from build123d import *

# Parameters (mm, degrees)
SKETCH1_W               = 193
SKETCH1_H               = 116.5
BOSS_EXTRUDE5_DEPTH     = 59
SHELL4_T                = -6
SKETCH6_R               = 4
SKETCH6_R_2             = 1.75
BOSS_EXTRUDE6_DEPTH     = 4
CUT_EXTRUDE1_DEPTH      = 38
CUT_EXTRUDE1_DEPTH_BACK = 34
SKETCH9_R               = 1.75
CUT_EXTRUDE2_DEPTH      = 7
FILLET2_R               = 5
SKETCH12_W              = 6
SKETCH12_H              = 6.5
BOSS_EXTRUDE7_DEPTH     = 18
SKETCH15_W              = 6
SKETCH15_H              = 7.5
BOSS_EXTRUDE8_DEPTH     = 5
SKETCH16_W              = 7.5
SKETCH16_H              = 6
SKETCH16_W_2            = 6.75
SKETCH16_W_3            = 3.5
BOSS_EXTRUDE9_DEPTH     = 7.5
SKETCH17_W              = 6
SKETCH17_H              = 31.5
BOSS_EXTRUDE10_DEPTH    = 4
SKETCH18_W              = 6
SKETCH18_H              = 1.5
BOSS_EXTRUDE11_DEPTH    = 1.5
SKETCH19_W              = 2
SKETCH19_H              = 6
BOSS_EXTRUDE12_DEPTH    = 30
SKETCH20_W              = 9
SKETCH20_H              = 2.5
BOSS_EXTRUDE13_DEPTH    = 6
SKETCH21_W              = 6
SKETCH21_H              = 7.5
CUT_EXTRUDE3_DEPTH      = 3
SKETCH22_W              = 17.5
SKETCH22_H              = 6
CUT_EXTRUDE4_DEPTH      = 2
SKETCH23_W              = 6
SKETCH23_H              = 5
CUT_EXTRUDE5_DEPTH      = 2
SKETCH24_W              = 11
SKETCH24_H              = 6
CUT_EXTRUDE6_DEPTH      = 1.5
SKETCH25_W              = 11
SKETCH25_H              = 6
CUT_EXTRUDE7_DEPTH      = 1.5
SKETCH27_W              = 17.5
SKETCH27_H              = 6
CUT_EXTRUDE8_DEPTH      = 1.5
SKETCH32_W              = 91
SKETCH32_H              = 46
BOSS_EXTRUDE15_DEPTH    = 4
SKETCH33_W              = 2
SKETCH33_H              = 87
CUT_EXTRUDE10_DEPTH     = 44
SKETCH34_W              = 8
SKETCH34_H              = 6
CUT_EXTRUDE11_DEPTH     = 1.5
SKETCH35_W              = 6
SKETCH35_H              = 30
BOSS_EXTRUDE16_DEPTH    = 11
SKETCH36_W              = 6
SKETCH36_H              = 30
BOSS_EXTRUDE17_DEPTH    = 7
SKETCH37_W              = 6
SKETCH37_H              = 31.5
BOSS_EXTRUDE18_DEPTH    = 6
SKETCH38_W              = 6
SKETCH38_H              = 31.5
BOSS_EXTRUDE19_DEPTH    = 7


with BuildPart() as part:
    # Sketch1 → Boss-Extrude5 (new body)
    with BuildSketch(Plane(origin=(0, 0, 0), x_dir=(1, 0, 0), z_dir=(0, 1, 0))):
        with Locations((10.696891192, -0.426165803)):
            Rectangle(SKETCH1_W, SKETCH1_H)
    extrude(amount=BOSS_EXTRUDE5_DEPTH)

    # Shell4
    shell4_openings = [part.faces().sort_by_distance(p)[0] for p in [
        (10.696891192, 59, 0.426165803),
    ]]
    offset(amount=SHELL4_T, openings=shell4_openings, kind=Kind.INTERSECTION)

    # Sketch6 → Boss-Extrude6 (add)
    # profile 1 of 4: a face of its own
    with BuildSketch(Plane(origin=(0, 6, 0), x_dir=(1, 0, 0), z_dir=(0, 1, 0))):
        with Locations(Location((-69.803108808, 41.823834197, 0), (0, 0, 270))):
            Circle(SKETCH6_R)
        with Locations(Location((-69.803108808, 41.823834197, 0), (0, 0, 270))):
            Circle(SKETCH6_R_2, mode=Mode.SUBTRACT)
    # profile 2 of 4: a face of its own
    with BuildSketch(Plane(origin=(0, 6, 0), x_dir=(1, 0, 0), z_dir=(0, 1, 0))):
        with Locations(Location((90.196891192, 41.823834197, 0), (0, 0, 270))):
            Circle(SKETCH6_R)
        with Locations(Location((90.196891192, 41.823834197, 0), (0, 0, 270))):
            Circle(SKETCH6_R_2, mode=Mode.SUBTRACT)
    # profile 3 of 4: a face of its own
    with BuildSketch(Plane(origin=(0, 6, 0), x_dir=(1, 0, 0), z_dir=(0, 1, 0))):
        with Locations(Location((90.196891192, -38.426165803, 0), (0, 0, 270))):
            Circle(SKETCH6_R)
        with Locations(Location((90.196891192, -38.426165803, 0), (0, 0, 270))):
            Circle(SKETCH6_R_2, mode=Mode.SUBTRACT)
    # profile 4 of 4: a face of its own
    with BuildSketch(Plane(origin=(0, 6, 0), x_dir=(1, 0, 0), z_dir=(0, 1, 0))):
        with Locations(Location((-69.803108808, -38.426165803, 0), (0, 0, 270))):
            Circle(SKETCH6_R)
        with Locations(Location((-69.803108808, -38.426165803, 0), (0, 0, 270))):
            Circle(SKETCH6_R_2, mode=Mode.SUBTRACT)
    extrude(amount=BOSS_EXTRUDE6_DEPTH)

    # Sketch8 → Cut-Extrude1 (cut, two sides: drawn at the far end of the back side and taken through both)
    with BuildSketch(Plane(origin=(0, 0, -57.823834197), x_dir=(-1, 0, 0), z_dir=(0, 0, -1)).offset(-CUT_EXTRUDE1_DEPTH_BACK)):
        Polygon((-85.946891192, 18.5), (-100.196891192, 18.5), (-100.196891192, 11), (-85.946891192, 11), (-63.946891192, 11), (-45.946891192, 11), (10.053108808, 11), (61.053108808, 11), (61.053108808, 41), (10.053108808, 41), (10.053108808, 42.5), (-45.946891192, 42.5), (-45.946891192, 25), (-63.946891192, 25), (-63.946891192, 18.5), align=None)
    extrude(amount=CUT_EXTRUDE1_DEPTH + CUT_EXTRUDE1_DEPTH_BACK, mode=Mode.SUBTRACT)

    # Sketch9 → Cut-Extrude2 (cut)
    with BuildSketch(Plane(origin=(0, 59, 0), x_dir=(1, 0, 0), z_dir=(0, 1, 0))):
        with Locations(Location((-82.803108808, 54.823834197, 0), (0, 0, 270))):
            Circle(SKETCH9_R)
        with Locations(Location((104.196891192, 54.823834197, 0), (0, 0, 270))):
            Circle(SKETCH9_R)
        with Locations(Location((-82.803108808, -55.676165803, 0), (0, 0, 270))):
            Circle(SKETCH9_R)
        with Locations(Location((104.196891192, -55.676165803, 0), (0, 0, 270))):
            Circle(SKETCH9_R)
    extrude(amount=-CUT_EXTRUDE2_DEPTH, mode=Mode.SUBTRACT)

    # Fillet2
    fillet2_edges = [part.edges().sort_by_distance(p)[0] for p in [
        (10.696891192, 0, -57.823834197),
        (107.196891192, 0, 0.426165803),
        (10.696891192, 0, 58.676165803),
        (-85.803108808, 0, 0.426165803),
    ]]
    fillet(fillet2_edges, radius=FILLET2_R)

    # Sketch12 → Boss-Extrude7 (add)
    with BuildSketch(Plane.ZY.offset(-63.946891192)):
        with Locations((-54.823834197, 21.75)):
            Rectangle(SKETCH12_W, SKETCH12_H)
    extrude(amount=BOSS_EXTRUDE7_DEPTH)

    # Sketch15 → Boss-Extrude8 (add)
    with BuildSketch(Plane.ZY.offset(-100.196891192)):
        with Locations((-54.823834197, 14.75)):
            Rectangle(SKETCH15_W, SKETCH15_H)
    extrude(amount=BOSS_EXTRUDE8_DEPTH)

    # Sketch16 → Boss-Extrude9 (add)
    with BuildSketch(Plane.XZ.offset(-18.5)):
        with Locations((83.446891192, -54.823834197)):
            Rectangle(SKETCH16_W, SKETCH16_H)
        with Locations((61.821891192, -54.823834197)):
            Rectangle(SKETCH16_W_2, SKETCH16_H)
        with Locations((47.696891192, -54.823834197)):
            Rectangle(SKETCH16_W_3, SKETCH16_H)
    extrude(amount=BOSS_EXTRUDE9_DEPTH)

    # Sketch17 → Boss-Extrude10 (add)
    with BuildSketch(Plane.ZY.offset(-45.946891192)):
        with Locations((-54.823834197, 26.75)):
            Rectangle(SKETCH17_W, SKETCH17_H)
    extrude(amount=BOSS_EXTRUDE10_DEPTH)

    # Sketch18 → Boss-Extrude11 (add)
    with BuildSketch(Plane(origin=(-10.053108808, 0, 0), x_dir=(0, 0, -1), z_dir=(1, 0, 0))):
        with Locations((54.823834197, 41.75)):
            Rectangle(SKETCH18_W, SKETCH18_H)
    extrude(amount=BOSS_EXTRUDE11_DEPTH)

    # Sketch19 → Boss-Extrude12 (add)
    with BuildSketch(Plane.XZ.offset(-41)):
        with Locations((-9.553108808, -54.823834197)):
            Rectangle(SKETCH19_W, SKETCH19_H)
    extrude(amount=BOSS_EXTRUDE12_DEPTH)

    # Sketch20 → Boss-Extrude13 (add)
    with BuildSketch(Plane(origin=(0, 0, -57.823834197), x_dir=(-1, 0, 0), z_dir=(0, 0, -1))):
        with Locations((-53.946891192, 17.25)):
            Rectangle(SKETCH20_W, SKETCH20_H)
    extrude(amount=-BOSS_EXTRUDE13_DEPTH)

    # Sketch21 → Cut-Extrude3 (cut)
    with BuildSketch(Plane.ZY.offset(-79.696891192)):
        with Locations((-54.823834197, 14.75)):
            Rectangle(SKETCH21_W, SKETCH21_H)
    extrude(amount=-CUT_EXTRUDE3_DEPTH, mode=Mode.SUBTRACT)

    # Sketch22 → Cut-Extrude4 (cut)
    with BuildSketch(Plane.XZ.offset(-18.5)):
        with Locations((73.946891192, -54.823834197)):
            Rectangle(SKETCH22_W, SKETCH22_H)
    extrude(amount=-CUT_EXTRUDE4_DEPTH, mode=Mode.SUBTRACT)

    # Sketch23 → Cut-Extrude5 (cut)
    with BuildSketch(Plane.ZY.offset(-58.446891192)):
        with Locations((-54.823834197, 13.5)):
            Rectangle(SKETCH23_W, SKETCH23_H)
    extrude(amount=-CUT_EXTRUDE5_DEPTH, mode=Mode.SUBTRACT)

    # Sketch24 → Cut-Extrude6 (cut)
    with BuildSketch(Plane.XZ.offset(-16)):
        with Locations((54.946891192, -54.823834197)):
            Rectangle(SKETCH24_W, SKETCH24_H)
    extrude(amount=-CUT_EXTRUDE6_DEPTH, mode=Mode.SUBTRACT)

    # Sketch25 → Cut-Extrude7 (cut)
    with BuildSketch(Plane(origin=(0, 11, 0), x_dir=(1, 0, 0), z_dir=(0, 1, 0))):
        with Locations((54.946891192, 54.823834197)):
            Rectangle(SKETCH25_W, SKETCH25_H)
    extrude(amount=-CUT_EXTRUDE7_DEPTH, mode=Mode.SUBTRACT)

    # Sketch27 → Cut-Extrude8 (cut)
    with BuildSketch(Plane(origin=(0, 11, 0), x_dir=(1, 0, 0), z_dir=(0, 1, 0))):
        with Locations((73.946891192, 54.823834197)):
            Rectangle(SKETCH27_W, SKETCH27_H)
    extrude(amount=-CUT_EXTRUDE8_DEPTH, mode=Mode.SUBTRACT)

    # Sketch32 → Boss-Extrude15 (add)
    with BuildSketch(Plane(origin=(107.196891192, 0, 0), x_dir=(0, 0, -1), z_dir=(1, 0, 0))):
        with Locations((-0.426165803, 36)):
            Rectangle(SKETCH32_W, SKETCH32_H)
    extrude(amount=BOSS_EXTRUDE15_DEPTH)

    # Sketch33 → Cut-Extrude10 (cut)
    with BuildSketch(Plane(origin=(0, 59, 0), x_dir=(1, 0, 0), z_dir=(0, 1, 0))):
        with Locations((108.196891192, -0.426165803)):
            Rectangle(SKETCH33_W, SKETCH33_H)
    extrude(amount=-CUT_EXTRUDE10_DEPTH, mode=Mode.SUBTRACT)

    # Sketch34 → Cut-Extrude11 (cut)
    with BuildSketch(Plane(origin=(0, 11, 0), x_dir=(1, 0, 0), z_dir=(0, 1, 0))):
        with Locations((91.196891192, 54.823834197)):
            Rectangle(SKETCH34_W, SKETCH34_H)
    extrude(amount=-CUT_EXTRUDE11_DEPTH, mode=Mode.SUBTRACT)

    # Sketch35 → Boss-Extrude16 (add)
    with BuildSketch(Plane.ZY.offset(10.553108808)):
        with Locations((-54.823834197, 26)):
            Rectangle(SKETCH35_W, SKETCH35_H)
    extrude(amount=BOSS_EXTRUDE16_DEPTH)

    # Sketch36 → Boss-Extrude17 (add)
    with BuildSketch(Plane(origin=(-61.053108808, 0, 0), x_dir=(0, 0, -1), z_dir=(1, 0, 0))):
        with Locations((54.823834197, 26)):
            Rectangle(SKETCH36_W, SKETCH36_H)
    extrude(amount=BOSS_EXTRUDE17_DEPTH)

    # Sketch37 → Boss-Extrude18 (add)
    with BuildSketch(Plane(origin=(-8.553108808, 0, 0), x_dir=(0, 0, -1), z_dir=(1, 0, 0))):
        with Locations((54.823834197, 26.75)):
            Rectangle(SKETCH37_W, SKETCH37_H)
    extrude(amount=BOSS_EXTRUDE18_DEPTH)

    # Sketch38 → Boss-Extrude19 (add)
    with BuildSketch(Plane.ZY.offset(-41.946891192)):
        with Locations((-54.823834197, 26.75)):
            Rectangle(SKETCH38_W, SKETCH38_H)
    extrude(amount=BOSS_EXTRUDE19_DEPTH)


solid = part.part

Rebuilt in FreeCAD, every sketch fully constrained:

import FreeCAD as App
import Part
import Sketcher
Q = App.Units.Quantity


def edges_at(feature, points):
    """Names of the edges that pass closest to the given points."""
    edges = feature.Shape.Edges
    near = lambda p: min(range(len(edges)), key=lambda i: edges[i].distToShape(Part.Vertex(*p))[0])
    return sorted({f"Edge{near(p) + 1}" for p in points})


def faces_at(feature, points):
    """Names of the faces that lie closest to the given points."""
    faces = feature.Shape.Faces
    near = lambda p: min(range(len(faces)), key=lambda i: faces[i].distToShape(Part.Vertex(*p))[0])
    return sorted({f"Face{near(p) + 1}" for p in points})


def add_polygon(sketch, points):
    """Adds a closed chain of lines whose ends are joined by coincident constraints."""
    first, n = sketch.GeometryCount, len(points)
    for a, b in zip(points, points[1:] + points[:1]):
        sketch.addGeometry(Part.LineSegment(App.Vector(*a, 0), App.Vector(*b, 0)), False)
    for i in range(n):
        sketch.addConstraint(Sketcher.Constraint("Coincident", first + i, 2, first + (i + 1) % n, 1))

doc = App.newDocument("Part")
body = doc.addObject("PartDesign::Body", "Body")

# Sketch on XZ plane
sketch1 = doc.addObject("Sketcher::SketchObject", "Sketch")
body.addObject(sketch1)
sketch1.AttachmentSupport = (doc.XZ_Plane, [""])
sketch1.MapMode = "FlatFace"
add_polygon(sketch1, [(-85.803109, -57.823834), (-85.803109, 58.676166), (107.196891, 58.676166), (107.196891, -57.823834)])  # lines 0-3
sketch1.addConstraint([
    Sketcher.Constraint("Vertical", 0),
    Sketcher.Constraint("Horizontal", 1),
    Sketcher.Constraint("Vertical", 2),
    Sketcher.Constraint("Horizontal", 3),
    Sketcher.Constraint("DistanceX", 1, 1, 1, 2, Q("193 mm")),
    Sketcher.Constraint("DistanceY", 0, 1, 0, 2, Q("116.5 mm")),
    Sketcher.Constraint("DistanceX", 0, 2, -1, 1, Q("85.803109 mm")),
    Sketcher.Constraint("DistanceY", -1, 1, 0, 2, Q("58.676166 mm")),
])
pad1 = doc.addObject("PartDesign::Pad", "Pad")
body.addObject(pad1)
pad1.Profile = sketch1
pad1.Length = 59
pad1.Reversed = True
doc.recompute()

thickness = doc.addObject("PartDesign::Thickness", "Thickness")
body.addObject(thickness)
thickness.Base = (pad1, faces_at(pad1, [(10.697, 59, 0.426)]))
thickness.Value = 6
thickness.Reversed = True
thickness.Join = "Intersection"

# Sketch on XZ plane
sketch2 = doc.addObject("Sketcher::SketchObject", "Sketch001")
body.addObject(sketch2)
sketch2.AttachmentSupport = (doc.XZ_Plane, [""])
sketch2.MapMode = "FlatFace"
sketch2.AttachmentOffset = App.Placement(App.Vector(0, 0, -6), App.Rotation())
sketch2.addGeometry([
    Part.Circle(App.Vector(-69.803109, -41.823834, 0), App.Vector(0, 0, 1), 4),  # 0
    Part.Circle(App.Vector(-69.803109, -41.823834, 0), App.Vector(0, 0, 1), 1.75),  # 1
    Part.Circle(App.Vector(90.196891, -41.823834, 0), App.Vector(0, 0, 1), 4),  # 2
    Part.Circle(App.Vector(90.196891, -41.823834, 0), App.Vector(0, 0, 1), 1.75),  # 3
    Part.Circle(App.Vector(90.196891, 38.426166, 0), App.Vector(0, 0, 1), 4),  # 4
    Part.Circle(App.Vector(90.196891, 38.426166, 0), App.Vector(0, 0, 1), 1.75),  # 5
    Part.Circle(App.Vector(-69.803109, 38.426166, 0), App.Vector(0, 0, 1), 4),  # 6
    Part.Circle(App.Vector(-69.803109, 38.426166, 0), App.Vector(0, 0, 1), 1.75),  # 7
], False)
sketch2.addConstraint([
    Sketcher.Constraint("Coincident", 1, 3, 0, 3),
    Sketcher.Constraint("Coincident", 3, 3, 2, 3),
    Sketcher.Constraint("Coincident", 5, 3, 4, 3),
    Sketcher.Constraint("Coincident", 7, 3, 6, 3),
    Sketcher.Constraint("Equal", 0, 2),
    Sketcher.Constraint("Equal", 1, 3),
    Sketcher.Constraint("Equal", 2, 4),
    Sketcher.Constraint("Equal", 3, 5),
    Sketcher.Constraint("Equal", 4, 6),
    Sketcher.Constraint("Equal", 5, 7),
    Sketcher.Constraint("Horizontal", 1, 3, 2, 3),
    Sketcher.Constraint("Horizontal", 5, 3, 6, 3),
    Sketcher.Constraint("Vertical", 3, 3, 4, 3),
    Sketcher.Constraint("Vertical", 1, 3, 6, 3),
    Sketcher.Constraint("Diameter", 0, Q("8 mm")),
    Sketcher.Constraint("Diameter", 1, Q("3.5 mm")),
    Sketcher.Constraint("DistanceX", 0, 3, 2, 3, Q("160 mm")),
    Sketcher.Constraint("DistanceY", 2, 3, 4, 3, Q("80.25 mm")),
    Sketcher.Constraint("DistanceX", 0, 3, -1, 1, Q("69.803109 mm")),
    Sketcher.Constraint("DistanceY", 0, 3, -1, 1, Q("41.823834 mm")),
])
pad2 = doc.addObject("PartDesign::Pad", "Pad001")
body.addObject(pad2)
pad2.Profile = sketch2
pad2.Length = 4
pad2.Reversed = True

# Sketch on XY plane
sketch3 = doc.addObject("Sketcher::SketchObject", "Sketch002")
body.addObject(sketch3)
sketch3.AttachmentSupport = (doc.XY_Plane, [""])
sketch3.MapMode = "FlatFace"
sketch3.AttachmentOffset = App.Placement(App.Vector(0, 0, -57.823834), App.Rotation())
add_polygon(sketch3, [(100.196891, 18.5), (100.196891, 11), (-61.053109, 11), (-61.053109, 41), (-10.053109, 41), (-10.053109, 42.5), (45.946891, 42.5), (45.946891, 25), (63.946891, 25), (63.946891, 18.5)])  # lines 0-9
sketch3.addConstraint([
    Sketcher.Constraint("Vertical", 0),
    Sketcher.Constraint("Horizontal", 1),
    Sketcher.Constraint("Vertical", 2),
    Sketcher.Constraint("Horizontal", 3),
    Sketcher.Constraint("Vertical", 4),
    Sketcher.Constraint("Horizontal", 5),
    Sketcher.Constraint("Vertical", 6),
    Sketcher.Constraint("Horizontal", 7),
    Sketcher.Constraint("Vertical", 8),
    Sketcher.Constraint("Horizontal", 9),
    Sketcher.Constraint("DistanceX", 3, 1, 3, 2, Q("51 mm")),
    Sketcher.Constraint("DistanceX", 5, 1, 5, 2, Q("56 mm")),
    Sketcher.Constraint("DistanceX", 7, 1, 7, 2, Q("18 mm")),
    Sketcher.Constraint("DistanceY", 2, 1, 2, 2, Q("30 mm")),
    Sketcher.Constraint("DistanceY", 0, 2, 0, 1, Q("7.5 mm")),
    Sketcher.Constraint("DistanceY", 4, 1, 4, 2, Q("1.5 mm")),
    Sketcher.Constraint("DistanceY", 6, 2, 6, 1, Q("17.5 mm")),
    Sketcher.Constraint("DistanceY", -1, 1, 0, 2, Q("11 mm")),
    Sketcher.Constraint("DistanceX", 1, 2, 1, 1, Q("161.25 mm")),
    Sketcher.Constraint("DistanceX", -1, 1, 0, 2, Q("100.196891 mm")),
])
pocket1 = doc.addObject("PartDesign::Pocket", "Pocket")
body.addObject(pocket1)
pocket1.Profile = sketch3
pocket1.Type = "TwoLengths"
pocket1.Length = 38
pocket1.Length2 = 34

# Sketch on XZ plane
sketch4 = doc.addObject("Sketcher::SketchObject", "Sketch003")
body.addObject(sketch4)
sketch4.AttachmentSupport = (doc.XZ_Plane, [""])
sketch4.MapMode = "FlatFace"
sketch4.AttachmentOffset = App.Placement(App.Vector(0, 0, -59), App.Rotation())
sketch4.addGeometry([
    Part.Circle(App.Vector(-82.803109, -54.823834, 0), App.Vector(0, 0, 1), 1.75),
    Part.Circle(App.Vector(104.196891, -54.823834, 0), App.Vector(0, 0, 1), 1.75),
    Part.Circle(App.Vector(-82.803109, 55.676166, 0), App.Vector(0, 0, 1), 1.75),
    Part.Circle(App.Vector(104.196891, 55.676166, 0), App.Vector(0, 0, 1), 1.75),
], False)
sketch4.addConstraint([
    Sketcher.Constraint("Equal", 0, 1),
    Sketcher.Constraint("Equal", 1, 2),
    Sketcher.Constraint("Equal", 2, 3),
    Sketcher.Constraint("Horizontal", 0, 3, 1, 3),
    Sketcher.Constraint("Horizontal", 2, 3, 3, 3),
    Sketcher.Constraint("Vertical", 0, 3, 2, 3),
    Sketcher.Constraint("Vertical", 1, 3, 3, 3),
    Sketcher.Constraint("Diameter", 0, Q("3.5 mm")),
    Sketcher.Constraint("DistanceX", 0, 3, 1, 3, Q("187 mm")),
    Sketcher.Constraint("DistanceY", 0, 3, 2, 3, Q("110.5 mm")),
    Sketcher.Constraint("DistanceX", 0, 3, -1, 1, Q("82.803109 mm")),
    Sketcher.Constraint("DistanceY", 0, 3, -1, 1, Q("54.823834 mm")),
])
pocket2 = doc.addObject("PartDesign::Pocket", "Pocket001")
body.addObject(pocket2)
pocket2.Profile = sketch4
pocket2.Length = 7
pocket2.Reversed = True
doc.recompute()

fillet = doc.addObject("PartDesign::Fillet", "Fillet")
body.addObject(fillet)
fillet.Base = (pocket2, edges_at(pocket2, [
    (10.697, 0, -57.824),
    (107.197, 0, 0.426),
    (10.697, 0, 58.676),
    (-85.803, 0, 0.426),
]))
fillet.Radius = 5

# Sketch on YZ plane
sketch5 = doc.addObject("Sketcher::SketchObject", "Sketch004")
body.addObject(sketch5)
sketch5.AttachmentSupport = (doc.YZ_Plane, [""])
sketch5.MapMode = "FlatFace"
sketch5.AttachmentOffset = App.Placement(App.Vector(0, 0, 63.946891), App.Rotation())
add_polygon(sketch5, [(25, -57.823834), (18.5, -57.823834), (18.5, -51.823834), (25, -51.823834)])  # lines 0-3
sketch5.addConstraint([
    Sketcher.Constraint("Horizontal", 0),
    Sketcher.Constraint("Vertical", 1),
    Sketcher.Constraint("Horizontal", 2),
    Sketcher.Constraint("Vertical", 3),
    Sketcher.Constraint("DistanceY", 1, 1, 1, 2, Q("6 mm")),
    Sketcher.Constraint("DistanceX", 0, 2, 0, 1, Q("6.5 mm")),
    Sketcher.Constraint("DistanceX", -1, 1, 2, 2, Q("25 mm")),
    Sketcher.Constraint("DistanceY", 0, 2, -1, 1, Q("57.823834 mm")),
])
pad3 = doc.addObject("PartDesign::Pad", "Pad002")
body.addObject(pad3)
pad3.Profile = sketch5
pad3.Length = 18
pad3.Reversed = True

# Sketch on YZ plane
sketch6 = doc.addObject("Sketcher::SketchObject", "Sketch005")
body.addObject(sketch6)
sketch6.AttachmentSupport = (doc.YZ_Plane, [""])
sketch6.MapMode = "FlatFace"
sketch6.AttachmentOffset = App.Placement(App.Vector(0, 0, 100.196891), App.Rotation())
add_polygon(sketch6, [(18.5, -57.823834), (11, -57.823834), (11, -51.823834), (18.5, -51.823834)])  # lines 0-3
sketch6.addConstraint([
    Sketcher.Constraint("Horizontal", 0),
    Sketcher.Constraint("Vertical", 1),
    Sketcher.Constraint("Horizontal", 2),
    Sketcher.Constraint("Vertical", 3),
    Sketcher.Constraint("DistanceY", 1, 1, 1, 2, Q("6 mm")),
    Sketcher.Constraint("DistanceX", 0, 2, 0, 1, Q("7.5 mm")),
    Sketcher.Constraint("DistanceX", -1, 1, 0, 2, Q("11 mm")),
    Sketcher.Constraint("DistanceY", 0, 2, -1, 1, Q("57.823834 mm")),
])
pad4 = doc.addObject("PartDesign::Pad", "Pad003")
body.addObject(pad4)
pad4.Profile = sketch6
pad4.Length = 5
pad4.Reversed = True

# Sketch on XZ plane
sketch7 = doc.addObject("Sketcher::SketchObject", "Sketch006")
body.addObject(sketch7)
sketch7.AttachmentSupport = (doc.XZ_Plane, [""])
sketch7.MapMode = "FlatFace"
sketch7.AttachmentOffset = App.Placement(App.Vector(0, 0, -18.5), App.Rotation())
add_polygon(sketch7, [(79.696891, -51.823834), (79.696891, -57.823834), (87.196891, -57.823834), (87.196891, -51.823834)])  # lines 0-3
add_polygon(sketch7, [(58.446891, -51.823834), (58.446891, -57.823834), (65.196891, -57.823834), (65.196891, -51.823834)])  # lines 4-7
add_polygon(sketch7, [(45.946891, -51.823834), (45.946891, -57.823834), (49.446891, -57.823834), (49.446891, -51.823834)])  # lines 8-11
sketch7.addConstraint([
    Sketcher.Constraint("Vertical", 0),
    Sketcher.Constraint("Horizontal", 1),
    Sketcher.Constraint("Vertical", 2),
    Sketcher.Constraint("Horizontal", 3),
    Sketcher.Constraint("Vertical", 4),
    Sketcher.Constraint("Horizontal", 5),
    Sketcher.Constraint("Vertical", 6),
    Sketcher.Constraint("Horizontal", 7),
    Sketcher.Constraint("Vertical", 8),
    Sketcher.Constraint("Horizontal", 9),
    Sketcher.Constraint("Vertical", 10),
    Sketcher.Constraint("Horizontal", 11),
    Sketcher.Constraint("Horizontal", 1, 2, 4, 2),
    Sketcher.Constraint("Horizontal", 3, 2, 6, 2),
    Sketcher.Constraint("Horizontal", 5, 2, 8, 2),
    Sketcher.Constraint("Horizontal", 7, 2, 10, 2),
    Sketcher.Constraint("DistanceY", 0, 2, 0, 1, Q("6 mm")),
    Sketcher.Constraint("DistanceX", 1, 1, 1, 2, Q("7.5 mm")),
    Sketcher.Constraint("DistanceX", 9, 1, 9, 2, Q("3.5 mm")),
    Sketcher.Constraint("DistanceX", 5, 2, 1, 2, Q("22 mm")),
    Sketcher.Constraint("DistanceX", 9, 2, 4, 2, Q("9 mm")),
    Sketcher.Constraint("DistanceX", 5, 1, 5, 2, Q("6.75 mm")),
    Sketcher.Constraint("DistanceX", -1, 1, 0, 2, Q("79.696891 mm")),
    Sketcher.Constraint("DistanceY", 0, 2, -1, 1, Q("57.823834 mm")),
])
pad5 = doc.addObject("PartDesign::Pad", "Pad004")
body.addObject(pad5)
pad5.Profile = sketch7
pad5.Length = 7.5

# Sketch on YZ plane
sketch8 = doc.addObject("Sketcher::SketchObject", "Sketch007")
body.addObject(sketch8)
sketch8.AttachmentSupport = (doc.YZ_Plane, [""])
sketch8.MapMode = "FlatFace"
sketch8.AttachmentOffset = App.Placement(App.Vector(0, 0, 45.946891), App.Rotation())
add_polygon(sketch8, [(42.5, -57.823834), (11, -57.823834), (11, -51.823834), (42.5, -51.823834)])  # lines 0-3
sketch8.addConstraint([
    Sketcher.Constraint("Horizontal", 0),
    Sketcher.Constraint("Vertical", 1),
    Sketcher.Constraint("Horizontal", 2),
    Sketcher.Constraint("Vertical", 3),
    Sketcher.Constraint("DistanceY", 1, 1, 1, 2, Q("6 mm")),
    Sketcher.Constraint("DistanceX", 0, 2, 0, 1, Q("31.5 mm")),
    Sketcher.Constraint("DistanceX", -1, 1, 0, 2, Q("11 mm")),
    Sketcher.Constraint("DistanceY", 0, 2, -1, 1, Q("57.823834 mm")),
])
pad6 = doc.addObject("PartDesign::Pad", "Pad005")
body.addObject(pad6)
pad6.Profile = sketch8
pad6.Length = 4
pad6.Reversed = True

# Sketch on YZ plane
sketch9 = doc.addObject("Sketcher::SketchObject", "Sketch008")
body.addObject(sketch9)
sketch9.AttachmentSupport = (doc.YZ_Plane, [""])
sketch9.MapMode = "FlatFace"
sketch9.AttachmentOffset = App.Placement(App.Vector(0, 0, -10.053109), App.Rotation())
add_polygon(sketch9, [(42.5, -51.823834), (41, -51.823834), (41, -57.823834), (42.5, -57.823834)])  # lines 0-3
sketch9.addConstraint([
    Sketcher.Constraint("Horizontal", 0),
    Sketcher.Constraint("Vertical", 1),
    Sketcher.Constraint("Horizontal", 2),
    Sketcher.Constraint("Vertical", 3),
    Sketcher.Constraint("DistanceY", 1, 2, 1, 1, Q("6 mm")),
    Sketcher.Constraint("DistanceX", 0, 2, 0, 1, Q("1.5 mm")),
    Sketcher.Constraint("DistanceX", -1, 1, 0, 2, Q("41 mm")),
    Sketcher.Constraint("DistanceY", 0, 2, -1, 1, Q("51.823834 mm")),
])
pad7 = doc.addObject("PartDesign::Pad", "Pad006")
body.addObject(pad7)
pad7.Profile = sketch9
pad7.Length = 1.5

# Sketch on XZ plane
sketch10 = doc.addObject("Sketcher::SketchObject", "Sketch009")
body.addObject(sketch10)
sketch10.AttachmentSupport = (doc.XZ_Plane, [""])
sketch10.MapMode = "FlatFace"
sketch10.AttachmentOffset = App.Placement(App.Vector(0, 0, -41), App.Rotation())
add_polygon(sketch10, [(-10.553109, -51.823834), (-10.553109, -57.823834), (-8.553109, -57.823834), (-8.553109, -51.823834)])  # lines 0-3
sketch10.addConstraint([
    Sketcher.Constraint("Vertical", 0),
    Sketcher.Constraint("Horizontal", 1),
    Sketcher.Constraint("Vertical", 2),
    Sketcher.Constraint("Horizontal", 3),
    Sketcher.Constraint("DistanceX", 1, 1, 1, 2, Q("2 mm")),
    Sketcher.Constraint("DistanceY", 0, 2, 0, 1, Q("6 mm")),
    Sketcher.Constraint("DistanceX", 0, 2, -1, 1, Q("10.553109 mm")),
    Sketcher.Constraint("DistanceY", 0, 2, -1, 1, Q("57.823834 mm")),
])
pad8 = doc.addObject("PartDesign::Pad", "Pad007")
body.addObject(pad8)
pad8.Profile = sketch10
pad8.Length = 30

# Sketch on XY plane
sketch11 = doc.addObject("Sketcher::SketchObject", "Sketch010")
body.addObject(sketch11)
sketch11.AttachmentSupport = (doc.XY_Plane, [""])
sketch11.MapMode = "FlatFace"
sketch11.AttachmentOffset = App.Placement(App.Vector(0, 0, -57.823834), App.Rotation())
add_polygon(sketch11, [(58.446891, 18.5), (58.446891, 16), (49.446891, 16), (49.446891, 18.5)])  # lines 0-3
sketch11.addConstraint([
    Sketcher.Constraint("Vertical", 0),
    Sketcher.Constraint("Horizontal", 1),
    Sketcher.Constraint("Vertical", 2),
    Sketcher.Constraint("Horizontal", 3),
    Sketcher.Constraint("DistanceX", 1, 2, 1, 1, Q("9 mm")),
    Sketcher.Constraint("DistanceY", 0, 2, 0, 1, Q("2.5 mm")),
    Sketcher.Constraint("DistanceY", -1, 1, 0, 2, Q("16 mm")),
    Sketcher.Constraint("DistanceX", -1, 1, 0, 2, Q("58.446891 mm")),
])
pad9 = doc.addObject("PartDesign::Pad", "Pad008")
body.addObject(pad9)
pad9.Profile = sketch11
pad9.Length = 6

# Sketch on YZ plane
sketch12 = doc.addObject("Sketcher::SketchObject", "Sketch011")
body.addObject(sketch12)
sketch12.AttachmentSupport = (doc.YZ_Plane, [""])
sketch12.MapMode = "FlatFace"
sketch12.AttachmentOffset = App.Placement(App.Vector(0, 0, 79.696891), App.Rotation())
add_polygon(sketch12, [(18.5, -57.823834), (11, -57.823834), (11, -51.823834), (18.5, -51.823834)])  # lines 0-3
sketch12.addConstraint([
    Sketcher.Constraint("Horizontal", 0),
    Sketcher.Constraint("Vertical", 1),
    Sketcher.Constraint("Horizontal", 2),
    Sketcher.Constraint("Vertical", 3),
    Sketcher.Constraint("DistanceY", 1, 1, 1, 2, Q("6 mm")),
    Sketcher.Constraint("DistanceX", 0, 2, 0, 1, Q("7.5 mm")),
    Sketcher.Constraint("DistanceX", -1, 1, 0, 2, Q("11 mm")),
    Sketcher.Constraint("DistanceY", 0, 2, -1, 1, Q("57.823834 mm")),
])
pocket3 = doc.addObject("PartDesign::Pocket", "Pocket002")
body.addObject(pocket3)
pocket3.Profile = sketch12
pocket3.Length = 3
pocket3.Reversed = True

# Sketch on XZ plane
sketch13 = doc.addObject("Sketcher::SketchObject", "Sketch012")
body.addObject(sketch13)
sketch13.AttachmentSupport = (doc.XZ_Plane, [""])
sketch13.MapMode = "FlatFace"
sketch13.AttachmentOffset = App.Placement(App.Vector(0, 0, -18.5), App.Rotation())
add_polygon(sketch13, [(65.196891, -51.823834), (65.196891, -57.823834), (82.696891, -57.823834), (82.696891, -51.823834)])  # lines 0-3
sketch13.addConstraint([
    Sketcher.Constraint("Vertical", 0),
    Sketcher.Constraint("Horizontal", 1),
    Sketcher.Constraint("Vertical", 2),
    Sketcher.Constraint("Horizontal", 3),
    Sketcher.Constraint("DistanceY", 0, 2, 0, 1, Q("6 mm")),
    Sketcher.Constraint("DistanceX", 1, 1, 1, 2, Q("17.5 mm")),
    Sketcher.Constraint("DistanceX", -1, 1, 0, 2, Q("65.196891 mm")),
    Sketcher.Constraint("DistanceY", 0, 2, -1, 1, Q("57.823834 mm")),
])
pocket4 = doc.addObject("PartDesign::Pocket", "Pocket003")
body.addObject(pocket4)
pocket4.Profile = sketch13
pocket4.Length = 2

# Sketch on YZ plane
sketch14 = doc.addObject("Sketcher::SketchObject", "Sketch013")
body.addObject(sketch14)
sketch14.AttachmentSupport = (doc.YZ_Plane, [""])
sketch14.MapMode = "FlatFace"
sketch14.AttachmentOffset = App.Placement(App.Vector(0, 0, 58.446891), App.Rotation())
add_polygon(sketch14, [(16, -57.823834), (11, -57.823834), (11, -51.823834), (16, -51.823834)])  # lines 0-3
sketch14.addConstraint([
    Sketcher.Constraint("Horizontal", 0),
    Sketcher.Constraint("Vertical", 1),
    Sketcher.Constraint("Horizontal", 2),
    Sketcher.Constraint("Vertical", 3),
    Sketcher.Constraint("DistanceX", 0, 2, 0, 1, Q("5 mm")),
    Sketcher.Constraint("DistanceY", 1, 1, 1, 2, Q("6 mm")),
    Sketcher.Constraint("DistanceX", -1, 1, 0, 2, Q("11 mm")),
    Sketcher.Constraint("DistanceY", 0, 2, -1, 1, Q("57.823834 mm")),
])
pocket5 = doc.addObject("PartDesign::Pocket", "Pocket004")
body.addObject(pocket5)
pocket5.Profile = sketch14
pocket5.Length = 2
pocket5.Reversed = True

# Sketch on XZ plane
sketch15 = doc.addObject("Sketcher::SketchObject", "Sketch014")
body.addObject(sketch15)
sketch15.AttachmentSupport = (doc.XZ_Plane, [""])
sketch15.MapMode = "FlatFace"
sketch15.AttachmentOffset = App.Placement(App.Vector(0, 0, -16), App.Rotation())
add_polygon(sketch15, [(49.446891, -51.823834), (49.446891, -57.823834), (60.446891, -57.823834), (60.446891, -51.823834)])  # lines 0-3
sketch15.addConstraint([
    Sketcher.Constraint("Vertical", 0),
    Sketcher.Constraint("Horizontal", 1),
    Sketcher.Constraint("Vertical", 2),
    Sketcher.Constraint("Horizontal", 3),
    Sketcher.Constraint("DistanceX", 1, 1, 1, 2, Q("11 mm")),
    Sketcher.Constraint("DistanceY", 0, 2, 0, 1, Q("6 mm")),
    Sketcher.Constraint("DistanceX", -1, 1, 0, 2, Q("49.446891 mm")),
    Sketcher.Constraint("DistanceY", 0, 2, -1, 1, Q("57.823834 mm")),
])
pocket6 = doc.addObject("PartDesign::Pocket", "Pocket005")
body.addObject(pocket6)
pocket6.Profile = sketch15
pocket6.Length = 1.5

# Sketch on XZ plane
sketch16 = doc.addObject("Sketcher::SketchObject", "Sketch015")
body.addObject(sketch16)
sketch16.AttachmentSupport = (doc.XZ_Plane, [""])
sketch16.MapMode = "FlatFace"
sketch16.AttachmentOffset = App.Placement(App.Vector(0, 0, -11), App.Rotation())
add_polygon(sketch16, [(49.446891, -57.823834), (49.446891, -51.823834), (60.446891, -51.823834), (60.446891, -57.823834)])  # lines 0-3
sketch16.addConstraint([
    Sketcher.Constraint("Vertical", 0),
    Sketcher.Constraint("Horizontal", 1),
    Sketcher.Constraint("Vertical", 2),
    Sketcher.Constraint("Horizontal", 3),
    Sketcher.Constraint("DistanceX", 1, 1, 1, 2, Q("11 mm")),
    Sketcher.Constraint("DistanceY", 0, 1, 0, 2, Q("6 mm")),
    Sketcher.Constraint("DistanceX", -1, 1, 0, 2, Q("49.446891 mm")),
    Sketcher.Constraint("DistanceY", 0, 2, -1, 1, Q("51.823834 mm")),
])
pocket7 = doc.addObject("PartDesign::Pocket", "Pocket006")
body.addObject(pocket7)
pocket7.Profile = sketch16
pocket7.Length = 1.5
pocket7.Reversed = True

# Sketch on XZ plane
sketch17 = doc.addObject("Sketcher::SketchObject", "Sketch016")
body.addObject(sketch17)
sketch17.AttachmentSupport = (doc.XZ_Plane, [""])
sketch17.MapMode = "FlatFace"
sketch17.AttachmentOffset = App.Placement(App.Vector(0, 0, -11), App.Rotation())
add_polygon(sketch17, [(65.196891, -57.823834), (65.196891, -51.823834), (82.696891, -51.823834), (82.696891, -57.823834)])  # lines 0-3
sketch17.addConstraint([
    Sketcher.Constraint("Vertical", 0),
    Sketcher.Constraint("Horizontal", 1),
    Sketcher.Constraint("Vertical", 2),
    Sketcher.Constraint("Horizontal", 3),
    Sketcher.Constraint("DistanceY", 0, 1, 0, 2, Q("6 mm")),
    Sketcher.Constraint("DistanceX", 1, 1, 1, 2, Q("17.5 mm")),
    Sketcher.Constraint("DistanceX", -1, 1, 0, 2, Q("65.196891 mm")),
    Sketcher.Constraint("DistanceY", 0, 2, -1, 1, Q("51.823834 mm")),
])
pocket8 = doc.addObject("PartDesign::Pocket", "Pocket007")
body.addObject(pocket8)
pocket8.Profile = sketch17
pocket8.Length = 1.5
pocket8.Reversed = True

# Sketch on YZ plane
sketch18 = doc.addObject("Sketcher::SketchObject", "Sketch017")
body.addObject(sketch18)
sketch18.AttachmentSupport = (doc.YZ_Plane, [""])
sketch18.MapMode = "FlatFace"
sketch18.AttachmentOffset = App.Placement(App.Vector(0, 0, 107.196891), App.Rotation())
add_polygon(sketch18, [(59, 45.926166), (13, 45.926166), (13, -45.073834), (59, -45.073834)])  # lines 0-3
sketch18.addConstraint([
    Sketcher.Constraint("Horizontal", 0),
    Sketcher.Constraint("Vertical", 1),
    Sketcher.Constraint("Horizontal", 2),
    Sketcher.Constraint("Vertical", 3),
    Sketcher.Constraint("DistanceX", 0, 2, 0, 1, Q("46 mm")),
    Sketcher.Constraint("DistanceY", 1, 2, 1, 1, Q("91 mm")),
    Sketcher.Constraint("DistanceX", -1, 1, 0, 2, Q("13 mm")),
    Sketcher.Constraint("DistanceY", -1, 1, 0, 2, Q("45.926166 mm")),
])
pad10 = doc.addObject("PartDesign::Pad", "Pad009")
body.addObject(pad10)
pad10.Profile = sketch18
pad10.Length = 4

# Sketch on XZ plane
sketch19 = doc.addObject("Sketcher::SketchObject", "Sketch018")
body.addObject(sketch19)
sketch19.AttachmentSupport = (doc.XZ_Plane, [""])
sketch19.MapMode = "FlatFace"
sketch19.AttachmentOffset = App.Placement(App.Vector(0, 0, -59), App.Rotation())
add_polygon(sketch19, [(107.196891, -43.073834), (107.196891, 43.926166), (109.196891, 43.926166), (109.196891, -43.073834)])  # lines 0-3
sketch19.addConstraint([
    Sketcher.Constraint("Vertical", 0),
    Sketcher.Constraint("Horizontal", 1),
    Sketcher.Constraint("Vertical", 2),
    Sketcher.Constraint("Horizontal", 3),
    Sketcher.Constraint("DistanceX", 1, 1, 1, 2, Q("2 mm")),
    Sketcher.Constraint("DistanceY", 0, 1, 0, 2, Q("87 mm")),
    Sketcher.Constraint("DistanceX", -1, 1, 0, 2, Q("107.196891 mm")),
    Sketcher.Constraint("DistanceY", -1, 1, 0, 2, Q("43.926166 mm")),
])
pocket9 = doc.addObject("PartDesign::Pocket", "Pocket008")
body.addObject(pocket9)
pocket9.Profile = sketch19
pocket9.Length = 44
pocket9.Reversed = True

# Sketch on XZ plane
sketch20 = doc.addObject("Sketcher::SketchObject", "Sketch019")
body.addObject(sketch20)
sketch20.AttachmentSupport = (doc.XZ_Plane, [""])
sketch20.MapMode = "FlatFace"
sketch20.AttachmentOffset = App.Placement(App.Vector(0, 0, -11), App.Rotation())
add_polygon(sketch20, [(87.196891, -57.823834), (87.196891, -51.823834), (95.196891, -51.823834), (95.196891, -57.823834)])  # lines 0-3
sketch20.addConstraint([
    Sketcher.Constraint("Vertical", 0),
    Sketcher.Constraint("Horizontal", 1),
    Sketcher.Constraint("Vertical", 2),
    Sketcher.Constraint("Horizontal", 3),
    Sketcher.Constraint("DistanceX", 1, 1, 1, 2, Q("8 mm")),
    Sketcher.Constraint("DistanceY", 0, 1, 0, 2, Q("6 mm")),
    Sketcher.Constraint("DistanceX", -1, 1, 0, 2, Q("87.196891 mm")),
    Sketcher.Constraint("DistanceY", 0, 2, -1, 1, Q("51.823834 mm")),
])
pocket10 = doc.addObject("PartDesign::Pocket", "Pocket009")
body.addObject(pocket10)
pocket10.Profile = sketch20
pocket10.Length = 1.5
pocket10.Reversed = True

# Sketch on YZ plane
sketch21 = doc.addObject("Sketcher::SketchObject", "Sketch020")
body.addObject(sketch21)
sketch21.AttachmentSupport = (doc.YZ_Plane, [""])
sketch21.MapMode = "FlatFace"
sketch21.AttachmentOffset = App.Placement(App.Vector(0, 0, -10.553109), App.Rotation())
add_polygon(sketch21, [(41, -57.823834), (11, -57.823834), (11, -51.823834), (41, -51.823834)])  # lines 0-3
sketch21.addConstraint([
    Sketcher.Constraint("Horizontal", 0),
    Sketcher.Constraint("Vertical", 1),
    Sketcher.Constraint("Horizontal", 2),
    Sketcher.Constraint("Vertical", 3),
    Sketcher.Constraint("DistanceX", 0, 2, 0, 1, Q("30 mm")),
    Sketcher.Constraint("DistanceY", 1, 1, 1, 2, Q("6 mm")),
    Sketcher.Constraint("DistanceX", -1, 1, 0, 2, Q("11 mm")),
    Sketcher.Constraint("DistanceY", 0, 2, -1, 1, Q("57.823834 mm")),
])
pad11 = doc.addObject("PartDesign::Pad", "Pad010")
body.addObject(pad11)
pad11.Profile = sketch21
pad11.Length = 11
pad11.Reversed = True

# Sketch on YZ plane
sketch22 = doc.addObject("Sketcher::SketchObject", "Sketch021")
body.addObject(sketch22)
sketch22.AttachmentSupport = (doc.YZ_Plane, [""])
sketch22.MapMode = "FlatFace"
sketch22.AttachmentOffset = App.Placement(App.Vector(0, 0, -61.053109), App.Rotation())
add_polygon(sketch22, [(41, -51.823834), (11, -51.823834), (11, -57.823834), (41, -57.823834)])  # lines 0-3
sketch22.addConstraint([
    Sketcher.Constraint("Horizontal", 0),
    Sketcher.Constraint("Vertical", 1),
    Sketcher.Constraint("Horizontal", 2),
    Sketcher.Constraint("Vertical", 3),
    Sketcher.Constraint("DistanceX", 0, 2, 0, 1, Q("30 mm")),
    Sketcher.Constraint("DistanceY", 1, 2, 1, 1, Q("6 mm")),
    Sketcher.Constraint("DistanceX", -1, 1, 0, 2, Q("11 mm")),
    Sketcher.Constraint("DistanceY", 0, 2, -1, 1, Q("51.823834 mm")),
])
pad12 = doc.addObject("PartDesign::Pad", "Pad011")
body.addObject(pad12)
pad12.Profile = sketch22
pad12.Length = 7

# Sketch on YZ plane
sketch23 = doc.addObject("Sketcher::SketchObject", "Sketch022")
body.addObject(sketch23)
sketch23.AttachmentSupport = (doc.YZ_Plane, [""])
sketch23.MapMode = "FlatFace"
sketch23.AttachmentOffset = App.Placement(App.Vector(0, 0, -8.553109), App.Rotation())
add_polygon(sketch23, [(42.5, -51.823834), (11, -51.823834), (11, -57.823834), (42.5, -57.823834)])  # lines 0-3
sketch23.addConstraint([
    Sketcher.Constraint("Horizontal", 0),
    Sketcher.Constraint("Vertical", 1),
    Sketcher.Constraint("Horizontal", 2),
    Sketcher.Constraint("Vertical", 3),
    Sketcher.Constraint("DistanceY", 1, 2, 1, 1, Q("6 mm")),
    Sketcher.Constraint("DistanceX", 0, 2, 0, 1, Q("31.5 mm")),
    Sketcher.Constraint("DistanceX", -1, 1, 0, 2, Q("11 mm")),
    Sketcher.Constraint("DistanceY", 0, 2, -1, 1, Q("51.823834 mm")),
])
pad13 = doc.addObject("PartDesign::Pad", "Pad012")
body.addObject(pad13)
pad13.Profile = sketch23
pad13.Length = 6

# Sketch on YZ plane
sketch24 = doc.addObject("Sketcher::SketchObject", "Sketch023")
body.addObject(sketch24)
sketch24.AttachmentSupport = (doc.YZ_Plane, [""])
sketch24.MapMode = "FlatFace"
sketch24.AttachmentOffset = App.Placement(App.Vector(0, 0, 41.946891), App.Rotation())
add_polygon(sketch24, [(42.5, -57.823834), (11, -57.823834), (11, -51.823834), (42.5, -51.823834)])  # lines 0-3
sketch24.addConstraint([
    Sketcher.Constraint("Horizontal", 0),
    Sketcher.Constraint("Vertical", 1),
    Sketcher.Constraint("Horizontal", 2),
    Sketcher.Constraint("Vertical", 3),
    Sketcher.Constraint("DistanceY", 1, 1, 1, 2, Q("6 mm")),
    Sketcher.Constraint("DistanceX", 0, 2, 0, 1, Q("31.5 mm")),
    Sketcher.Constraint("DistanceX", -1, 1, 0, 2, Q("11 mm")),
    Sketcher.Constraint("DistanceY", 0, 2, -1, 1, Q("57.823834 mm")),
])
pad14 = doc.addObject("PartDesign::Pad", "Pad013")
body.addObject(pad14)
pad14.Profile = sketch24
pad14.Length = 7
pad14.Reversed = True

doc.recompute()
